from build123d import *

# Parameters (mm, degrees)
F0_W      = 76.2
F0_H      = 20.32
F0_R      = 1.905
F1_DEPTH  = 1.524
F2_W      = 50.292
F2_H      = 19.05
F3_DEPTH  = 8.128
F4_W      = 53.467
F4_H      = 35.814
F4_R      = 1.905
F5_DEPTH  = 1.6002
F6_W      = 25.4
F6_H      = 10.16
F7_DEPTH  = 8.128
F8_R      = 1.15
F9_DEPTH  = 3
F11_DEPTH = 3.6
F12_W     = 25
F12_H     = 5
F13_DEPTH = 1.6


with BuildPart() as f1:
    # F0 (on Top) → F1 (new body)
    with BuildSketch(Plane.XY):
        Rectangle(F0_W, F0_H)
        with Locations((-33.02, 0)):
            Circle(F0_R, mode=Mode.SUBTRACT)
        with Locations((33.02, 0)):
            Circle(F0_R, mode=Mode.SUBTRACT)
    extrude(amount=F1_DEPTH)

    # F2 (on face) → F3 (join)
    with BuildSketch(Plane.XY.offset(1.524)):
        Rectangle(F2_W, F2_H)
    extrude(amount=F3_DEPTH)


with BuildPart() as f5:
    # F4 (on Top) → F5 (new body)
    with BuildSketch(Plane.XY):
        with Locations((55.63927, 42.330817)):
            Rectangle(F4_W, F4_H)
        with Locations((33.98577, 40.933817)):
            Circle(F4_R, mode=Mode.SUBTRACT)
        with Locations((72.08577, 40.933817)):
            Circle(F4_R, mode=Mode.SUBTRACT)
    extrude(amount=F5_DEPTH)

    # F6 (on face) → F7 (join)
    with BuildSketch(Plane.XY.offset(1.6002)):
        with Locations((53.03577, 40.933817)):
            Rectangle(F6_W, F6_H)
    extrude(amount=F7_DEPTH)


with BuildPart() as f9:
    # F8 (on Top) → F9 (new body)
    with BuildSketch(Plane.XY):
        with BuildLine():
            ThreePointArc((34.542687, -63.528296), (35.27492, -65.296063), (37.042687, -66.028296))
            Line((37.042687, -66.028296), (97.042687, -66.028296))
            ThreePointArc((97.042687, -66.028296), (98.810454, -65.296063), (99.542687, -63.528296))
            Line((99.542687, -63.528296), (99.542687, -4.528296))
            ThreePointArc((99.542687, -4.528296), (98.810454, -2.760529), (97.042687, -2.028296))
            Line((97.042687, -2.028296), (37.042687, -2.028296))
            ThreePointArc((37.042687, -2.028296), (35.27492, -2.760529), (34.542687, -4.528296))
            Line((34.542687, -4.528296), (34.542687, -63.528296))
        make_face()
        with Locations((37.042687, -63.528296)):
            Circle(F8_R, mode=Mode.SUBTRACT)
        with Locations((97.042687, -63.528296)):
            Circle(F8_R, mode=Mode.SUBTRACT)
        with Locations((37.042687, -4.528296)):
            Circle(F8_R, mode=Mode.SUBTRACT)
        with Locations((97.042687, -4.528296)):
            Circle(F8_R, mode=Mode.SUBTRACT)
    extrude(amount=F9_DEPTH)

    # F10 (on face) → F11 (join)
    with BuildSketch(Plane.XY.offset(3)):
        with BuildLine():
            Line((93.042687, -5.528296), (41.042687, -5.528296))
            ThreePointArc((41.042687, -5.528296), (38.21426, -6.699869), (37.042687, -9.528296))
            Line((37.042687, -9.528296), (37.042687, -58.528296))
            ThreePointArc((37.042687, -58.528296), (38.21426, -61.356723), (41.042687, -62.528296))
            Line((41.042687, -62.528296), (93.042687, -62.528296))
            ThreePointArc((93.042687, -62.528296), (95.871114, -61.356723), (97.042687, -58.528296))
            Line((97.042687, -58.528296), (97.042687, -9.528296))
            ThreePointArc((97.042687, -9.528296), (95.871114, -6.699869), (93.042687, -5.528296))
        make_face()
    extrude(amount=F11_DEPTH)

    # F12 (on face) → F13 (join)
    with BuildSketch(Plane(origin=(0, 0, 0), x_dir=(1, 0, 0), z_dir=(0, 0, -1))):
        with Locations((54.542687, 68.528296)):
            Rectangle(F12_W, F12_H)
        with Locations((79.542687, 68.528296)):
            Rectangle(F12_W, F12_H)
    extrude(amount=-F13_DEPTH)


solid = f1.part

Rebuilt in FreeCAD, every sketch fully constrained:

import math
import FreeCAD as App
import Part
import Sketcher

V = App.Vector
Q = App.Units.Quantity


def add_polygon(sketch, points):
    """Adds a closed chain of lines whose ends are joined by coincident constraints."""
    first, n = sketch.GeometryCount, len(points)
    for a, b in zip(points, points[1:] + points[:1]):
        sketch.addGeometry(Part.LineSegment(App.Vector(*a, 0), App.Vector(*b, 0)), False)
    for i in range(n):
        sketch.addConstraint(Sketcher.Constraint("Coincident", first + i, 2, first + (i + 1) % n, 1))

doc = App.newDocument("Part")
body = doc.addObject("PartDesign::Body", "Body")

# Sketch on XY plane
sketch1 = body.newObject("Sketcher::SketchObject", "Sketch")
sketch1.AttachmentSupport = (doc.getObject("XY_Plane"), [""])
sketch1.MapMode = "FlatFace"
add_polygon(sketch1, [(-38.1, 10.2), (-38.1, -10.2), (38.1, -10.2), (38.1, 10.2)])  # lines 0-3
sketch1.addGeometry(Part.Circle(V(-33, 0, 0), V(0, 0, 1), 1.9), False)  # 4
sketch1.addGeometry(Part.Circle(V(33, 0, 0), V(0, 0, 1), 1.9), False)  # 5
sketch1.addConstraint([
    Sketcher.Constraint("Vertical", 0),
    Sketcher.Constraint("Horizontal", 1),
    Sketcher.Constraint("Vertical", 2),
    Sketcher.Constraint("Horizontal", 3),
    Sketcher.Constraint("Equal", 4, 5),
    Sketcher.Constraint("Symmetric", 4, 3, 5, 3, -1, 1),
    Sketcher.Constraint("Symmetric", 0, 2, 2, 2, -1, 1),
    Sketcher.Constraint("PointOnObject", 4, 3, -1),
    Sketcher.Constraint("Diameter", 4, Q("0.15 in")),
    Sketcher.Constraint("DistanceX", 1, 1, 1, 2, Q("3 in")),
    Sketcher.Constraint("DistanceY", 0, 2, 0, 1, Q("0.8 in")),
    Sketcher.Constraint("DistanceX", 4, 3, -1, 1, Q("1.3 in")),
])
pad1 = body.newObject("PartDesign::Pad", "Pad")
pad1.Profile = sketch1
pad1.Length = Q("0.06 in")

# Sketch on XY plane
sketch2 = body.newObject("Sketcher::SketchObject", "Sketch001")
sketch2.AttachmentSupport = (doc.getObject("XY_Plane"), [""])
sketch2.MapMode = "FlatFace"
sketch2.AttachmentOffset = App.Placement(V(0, 0, 0.06 * 25.4), App.Rotation())
add_polygon(sketch2, [(-25, 10), (-25, -10), (25, -10), (25, 10)])  # lines 0-3
sketch2.addConstraint([
    Sketcher.Constraint("Vertical", 0),
    Sketcher.Constraint("Horizontal", 1),
    Sketcher.Constraint("Vertical", 2),
    Sketcher.Constraint("Horizontal", 3),
    Sketcher.Constraint("Symmetric", 0, 2, 2, 2, -1, 1),
    Sketcher.Constraint("DistanceX", 1, 1, 1, 2, Q("1.98 in")),
    Sketcher.Constraint("DistanceY", 0, 2, 0, 1, Q("0.75 in")),
])
pad2 = body.newObject("PartDesign::Pad", "Pad001")
pad2.Profile = sketch2
pad2.Length = Q("0.32 in")
body2 = doc.addObject("PartDesign::Body", "Body001")

# Sketch on XY plane
sketch3 = body2.newObject("Sketcher::SketchObject", "Sketch002")
sketch3.AttachmentSupport = (doc.getObject("XY_Plane001"), [""])
sketch3.MapMode = "FlatFace"
add_polygon(sketch3, [(28.9, 60.2), (28.9, 24.4), (82.4, 24.4), (82.4, 60.2)])  # lines 0-3
sketch3.addGeometry(Part.Circle(V(34, 40.9, 0), V(0, 0, 1), 1.9), False)  # 4
sketch3.addGeometry(Part.Circle(V(72.1, 40.9, 0), V(0, 0, 1), 1.9), False)  # 5
sketch3.addConstraint([
    Sketcher.Constraint("Vertical", 0),
    Sketcher.Constraint("Horizontal", 1),
    Sketcher.Constraint("Vertical", 2),
    Sketcher.Constraint("Horizontal", 3),
    Sketcher.Constraint("Equal", 4, 5),
    Sketcher.Constraint("Horizontal", 4, 3, 5, 3),
    Sketcher.Constraint("Diameter", 4, Q("0.15 in")),
    Sketcher.Constraint("DistanceY", 0, 2, 0, 1, Q("1.41 in")),
    Sketcher.Constraint("DistanceX", 4, 3, 5, 3, Q("1.5 in")),
    Sketcher.Constraint("DistanceX", 0, 2, 4, 3, Q("0.2 in")),
    Sketcher.Constraint("DistanceX", 1, 1, 1, 2, Q("2.105 in")),
    Sketcher.Constraint("DistanceY", 0, 2, 4, 3, Q("0.65 in")),
    Sketcher.Constraint("DistanceX", -1, 1, 4, 3, 33.98577),
    Sketcher.Constraint("DistanceY", -1, 1, 4, 3, 40.933817),
])
pad3 = body2.newObject("PartDesign::Pad", "Pad002")
pad3.Profile = sketch3
pad3.Length = Q("0.063 in")

# Sketch on XY plane
sketch4 = body2.newObject("Sketcher::SketchObject", "Sketch003")
sketch4.AttachmentSupport = (doc.getObject("XY_Plane001"), [""])
sketch4.MapMode = "FlatFace"
sketch4.AttachmentOffset = App.Placement(V(0, 0, 0.063 * 25.4), App.Rotation())
add_polygon(sketch4, [(40, 46), (40, 36), (66, 36), (66, 46)])  # lines 0-3
sketch4.addConstraint([
    Sketcher.Constraint("Vertical", 0),
    Sketcher.Constraint("Horizontal", 1),
    Sketcher.Constraint("Vertical", 2),
    Sketcher.Constraint("Horizontal", 3),
    Sketcher.Constraint("DistanceX", 1, 1, 1, 2, Q("1 in")),
    Sketcher.Constraint("DistanceY", 0, 2, 0, 1, Q("0.4 in")),
    Sketcher.Constraint("DistanceX", -1, 1, 0, 2, 40.33577),
    Sketcher.Constraint("DistanceY", -1, 1, 0, 2, 35.853817),
])
pad4 = body2.newObject("PartDesign::Pad", "Pad003")
pad4.Profile = sketch4
pad4.Length = Q("0.32 in")
body3 = doc.addObject("PartDesign::Body", "Body002")

# Sketch on XY plane
sketch5 = body3.newObject("Sketcher::SketchObject", "Sketch004")
sketch5.AttachmentSupport = (doc.getObject("XY_Plane002"), [""])
sketch5.MapMode = "FlatFace"
sketch5.addGeometry([
    Part.ArcOfCircle(Part.Circle(V(37, -63.5, 0), V(0, 0, 1), 2.5), math.radians(180), math.radians(270)),  # 0
    Part.LineSegment(V(37, -66, 0), V(97, -66, 0)),  # 1
    Part.ArcOfCircle(Part.Circle(V(97, -63.5, 0), V(0, 0, 1), 2.5), math.radians(-90), math.radians(0)),  # 2
    Part.LineSegment(V(99.5, -63.5, 0), V(99.5, -4.5, 0)),  # 3
    Part.ArcOfCircle(Part.Circle(V(97, -4.5, 0), V(0, 0, 1), 2.5), math.radians(0), math.radians(90)),  # 4
    Part.LineSegment(V(97, -2, 0), V(37, -2, 0)),  # 5
    Part.ArcOfCircle(Part.Circle(V(37, -4.5, 0), V(0, 0, 1), 2.5), math.radians(90), math.radians(180)),  # 6
    Part.LineSegment(V(34.5, -4.5, 0), V(34.5, -63.5, 0)),  # 7
    Part.Circle(V(37, -63.5, 0), V(0, 0, 1), 1.1),  # 8
    Part.Circle(V(97, -63.5, 0), V(0, 0, 1), 1.1),  # 9
    Part.Circle(V(37, -4.5, 0), V(0, 0, 1), 1.1),  # 10
    Part.Circle(V(97, -4.5, 0), V(0, 0, 1), 1.1),  # 11
], False)
sketch5.addConstraint([
    Sketcher.Constraint("Tangent", 0, 2, 1, 1),
    Sketcher.Constraint("Tangent", 1, 2, 2, 1),
    Sketcher.Constraint("Tangent", 2, 2, 3, 1),
    Sketcher.Constraint("Tangent", 3, 2, 4, 1),
    Sketcher.Constraint("Tangent", 4, 2, 5, 1),
    Sketcher.Constraint("Tangent", 5, 2, 6, 1),
    Sketcher.Constraint("Tangent", 6, 2, 7, 1),
    Sketcher.Constraint("Tangent", 7, 2, 0, 1),
    Sketcher.Constraint("Horizontal", 1),
    Sketcher.Constraint("Vertical", 3),
    Sketcher.Constraint("Horizontal", 5),
    Sketcher.Constraint("Vertical", 7),
    Sketcher.Constraint("Coincident", 8, 3, 0, 3),
    Sketcher.Constraint("Coincident", 9, 3, 2, 3),
    Sketcher.Constraint("Coincident", 10, 3, 6, 3),
    Sketcher.Constraint("Coincident", 11, 3, 4, 3),
    Sketcher.Constraint("Equal", 0, 2),
    Sketcher.Constraint("Equal", 2, 4),
    Sketcher.Constraint("Equal", 4, 6),
    Sketcher.Constraint("Equal", 8, 9),
    Sketcher.Constraint("Equal", 9, 10),
    Sketcher.Constraint("Equal", 10, 11),
    Sketcher.Constraint("Diameter", 8, 2.3),
    Sketcher.Constraint("Radius", 0, 2.5),
    Sketcher.Constraint("DistanceX", 1, 1, 1, 2, 60.0),
    Sketcher.Constraint("DistanceY", 3, 1, 3, 2, 59.0),
    Sketcher.Constraint("DistanceX", -1, 1, 0, 3, 37.042687),
    Sketcher.Constraint("DistanceY", 0, 3, -1, 1, 63.528296),
])
pad5 = body3.newObject("PartDesign::Pad", "Pad004")
pad5.Profile = sketch5
pad5.Length = 3

# Sketch on XY plane
sketch6 = body3.newObject("Sketcher::SketchObject", "Sketch005")
sketch6.AttachmentSupport = (doc.getObject("XY_Plane002"), [""])
sketch6.MapMode = "FlatFace"
sketch6.AttachmentOffset = App.Placement(V(0, 0, 3), App.Rotation())
sketch6.addGeometry([
    Part.LineSegment(V(93, -5.5, 0), V(41, -5.5, 0)),  # 0
    Part.ArcOfCircle(Part.Circle(V(41, -9.5, 0), V(0, 0, 1), 4), math.radians(90), math.radians(180)),  # 1
    Part.LineSegment(V(37, -9.5, 0), V(37, -58.5, 0)),  # 2
    Part.ArcOfCircle(Part.Circle(V(41, -58.5, 0), V(0, 0, 1), 4), math.radians(-180), math.radians(-90)),  # 3
    Part.LineSegment(V(41, -62.5, 0), V(93, -62.5, 0)),  # 4
    Part.ArcOfCircle(Part.Circle(V(93, -58.5, 0), V(0, 0, 1), 4), math.radians(-90), math.radians(0)),  # 5
    Part.LineSegment(V(97, -58.5, 0), V(97, -9.5, 0)),  # 6
    Part.ArcOfCircle(Part.Circle(V(93, -9.5, 0), V(0, 0, 1), 4), math.radians(0), math.radians(90)),  # 7
], False)
sketch6.addConstraint([
    Sketcher.Constraint("Tangent", 0, 2, 1, 1),
    Sketcher.Constraint("Tangent", 1, 2, 2, 1),
    Sketcher.Constraint("Tangent", 2, 2, 3, 1),
    Sketcher.Constraint("Tangent", 3, 2, 4, 1),
    Sketcher.Constraint("Tangent", 4, 2, 5, 1),
    Sketcher.Constraint("Tangent", 5, 2, 6, 1),
    Sketcher.Constraint("Tangent", 6, 2, 7, 1),
    Sketcher.Constraint("Tangent", 7, 2, 0, 1),
    Sketcher.Constraint("Horizontal", 0),
    Sketcher.Constraint("Vertical", 2),
    Sketcher.Constraint("Horizontal", 4),
    Sketcher.Constraint("Vertical", 6),
    Sketcher.Constraint("Equal", 1, 3),
    Sketcher.Constraint("Equal", 3, 5),
    Sketcher.Constraint("Equal", 5, 7),
    Sketcher.Constraint("Radius", 1, 4.0),
    Sketcher.Constraint("DistanceX", 0, 2, 0, 1, 52.0),
    Sketcher.Constraint("DistanceY", 2, 2, 2, 1, 49.0),
    Sketcher.Constraint("DistanceX", -1, 1, 1, 3, 41.042687),
    Sketcher.Constraint("DistanceY", 1, 3, -1, 1, 9.528296),
])
pad6 = body3.newObject("PartDesign::Pad", "Pad005")
pad6.Profile = sketch6
pad6.Length = 3.6

# Sketch on XY plane
sketch7 = body3.newObject("Sketcher::SketchObject", "Sketch006")
sketch7.AttachmentSupport = (doc.getObject("XY_Plane002"), [""])
sketch7.MapMode = "FlatFace"
add_polygon(sketch7, [(42, -71), (42, -66), (92, -66), (92, -71)])  # lines 0-3
sketch7.addConstraint([
    Sketcher.Constraint("Vertical", 0),
    Sketcher.Constraint("Horizontal", 1),
    Sketcher.Constraint("Vertical", 2),
    Sketcher.Constraint("Horizontal", 3),
    Sketcher.Constraint("DistanceX", 1, 1, 1, 2, 50.0),
    Sketcher.Constraint("DistanceY", 0, 1, 0, 2, 5.0),
    Sketcher.Constraint("DistanceX", -1, 1, 0, 2, 42.042687),
    Sketcher.Constraint("DistanceY", 0, 2, -1, 1, 66.028296),
])
pad7 = body3.newObject("PartDesign::Pad", "Pad006")
pad7.Profile = sketch7
pad7.Length = 1.6
body2.Visibility = False
body3.Visibility = False

doc.recompute()
